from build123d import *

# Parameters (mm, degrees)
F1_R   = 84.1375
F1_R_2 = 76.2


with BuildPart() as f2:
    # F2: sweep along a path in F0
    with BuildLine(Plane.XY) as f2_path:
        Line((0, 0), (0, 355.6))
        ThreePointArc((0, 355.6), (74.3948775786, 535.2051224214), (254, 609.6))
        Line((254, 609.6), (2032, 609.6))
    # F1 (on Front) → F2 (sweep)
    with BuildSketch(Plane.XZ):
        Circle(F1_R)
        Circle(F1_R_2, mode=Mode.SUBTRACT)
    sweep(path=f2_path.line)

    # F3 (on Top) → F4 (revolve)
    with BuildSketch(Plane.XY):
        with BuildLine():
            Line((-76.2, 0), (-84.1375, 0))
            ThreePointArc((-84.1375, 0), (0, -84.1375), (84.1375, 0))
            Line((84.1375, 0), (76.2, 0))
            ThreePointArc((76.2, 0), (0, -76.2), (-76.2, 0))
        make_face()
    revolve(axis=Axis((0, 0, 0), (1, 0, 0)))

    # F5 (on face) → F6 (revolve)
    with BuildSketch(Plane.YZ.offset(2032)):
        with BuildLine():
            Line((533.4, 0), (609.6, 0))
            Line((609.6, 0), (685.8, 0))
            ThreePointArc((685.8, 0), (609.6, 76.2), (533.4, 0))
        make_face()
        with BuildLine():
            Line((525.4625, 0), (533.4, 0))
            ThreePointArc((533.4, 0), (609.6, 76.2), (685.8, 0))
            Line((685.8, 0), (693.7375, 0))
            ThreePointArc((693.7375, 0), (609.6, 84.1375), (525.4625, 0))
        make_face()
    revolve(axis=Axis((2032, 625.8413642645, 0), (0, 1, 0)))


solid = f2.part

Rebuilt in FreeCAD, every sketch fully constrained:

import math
import FreeCAD as App
import Part
import Sketcher
Q = App.Units.Quantity

doc = App.newDocument("Part")
body = doc.addObject("PartDesign::Body", "Body")

# Sketch on XZ plane
sketch1 = body.newObject("Sketcher::SketchObject", "Sketch")
sketch1.AttachmentSupport = (doc.getObject("XZ_Plane"), [""])
sketch1.MapMode = "FlatFace"
sketch1.addGeometry([
    Part.Circle(App.Vector(0, 0, 0), App.Vector(0, 0, 1), 84),
    Part.Circle(App.Vector(0, 0, 0), App.Vector(0, 0, 1), 76),
], False)
sketch1.addConstraint([
    Sketcher.Constraint("Coincident", 0, 3, -1, 1),
    Sketcher.Constraint("Coincident", 1, 3, -1, 1),
    Sketcher.Constraint("Diameter", 1, Q("6 in")),
    Sketcher.Constraint("Diameter", 0, Q("6.625 in")),
])

# Sketch on XY plane
sketch2 = body.newObject("Sketcher::SketchObject", "Sketch001")
sketch2.AttachmentSupport = (doc.getObject("XY_Plane"), [""])
sketch2.MapMode = "FlatFace"
sketch2.addGeometry([
    Part.LineSegment(App.Vector(0, 0, 0), App.Vector(0, 356, 0)),
    Part.ArcOfCircle(Part.Circle(App.Vector(254, 356, 0), App.Vector(0, 0, 1), 254), math.radians(90), math.radians(180)),
    Part.LineSegment(App.Vector(254, 610, 0), App.Vector(2032, 610, 0)),
], False)
sketch2.addConstraint([
    Sketcher.Constraint("Tangent", 0, 2, 1, 2),
    Sketcher.Constraint("Tangent", 1, 1, 2, 1),
    Sketcher.Constraint("Vertical", 0),
    Sketcher.Constraint("Horizontal", 2),
    Sketcher.Constraint("Coincident", 0, 1, -1, 1),
    Sketcher.Constraint("Radius", 1, Q("10 in")),
    Sketcher.Constraint("DistanceX", 2, 1, 2, 2, Q("70 in")),
    Sketcher.Constraint("DistanceY", 0, 1, 0, 2, Q("14 in")),
])
doc.recompute()

additivepipe = body.newObject("PartDesign::AdditivePipe", "AdditivePipe")
additivepipe.Profile = sketch1
additivepipe.Spine = (sketch2, ["Edge1", "Edge2", "Edge3"])

# Sketch on XY plane
sketch3 = body.newObject("Sketcher::SketchObject", "Sketch002")
sketch3.AttachmentSupport = (doc.getObject("XY_Plane"), [""])
sketch3.MapMode = "FlatFace"
sketch3.addGeometry([
    Part.LineSegment(App.Vector(-76, 0, 0), App.Vector(-84, 0, 0)),
    Part.ArcOfCircle(Part.Circle(App.Vector(0, 0, 0), App.Vector(0, 0, 1), 84), math.radians(180), math.radians(360)),
    Part.LineSegment(App.Vector(84, 0, 0), App.Vector(76, 0, 0)),
    Part.ArcOfCircle(Part.Circle(App.Vector(0, 0, 0), App.Vector(0, 0, 1), 76), math.radians(180), math.radians(360)),
], False)
sketch3.addConstraint([
    Sketcher.Constraint("Coincident", 0, 2, 1, 1),
    Sketcher.Constraint("Coincident", 1, 2, 2, 1),
    Sketcher.Constraint("Coincident", 2, 2, 3, 2),
    Sketcher.Constraint("Coincident", 3, 1, 0, 1),
    Sketcher.Constraint("Horizontal", 0),
    Sketcher.Constraint("Horizontal", 2),
    Sketcher.Constraint("Coincident", 1, 3, -1, 1),
    Sketcher.Constraint("Coincident", 3, 3, -1, 1),
    Sketcher.Constraint("PointOnObject", 0, 2, -1),
    Sketcher.Constraint("PointOnObject", 1, 2, -1),
    Sketcher.Constraint("Radius", 3, Q("3 in")),
    Sketcher.Constraint("Radius", 1, Q("3.3125 in")),
])
revolution = body.newObject("PartDesign::Revolution", "Revolution")
revolution.Profile = sketch3
revolution.ReferenceAxis = (sketch3, ["H_Axis"])
revolution.Angle = 360

# Sketch on YZ plane
sketch4 = body.newObject("Sketcher::SketchObject", "Sketch003")
sketch4.AttachmentSupport = (doc.getObject("YZ_Plane"), [""])
sketch4.MapMode = "FlatFace"
sketch4.AttachmentOffset = App.Placement(App.Vector(0, 0, 80 * 25.4), App.Rotation())
sketch4.addGeometry([
    Part.ArcOfCircle(Part.Circle(App.Vector(610, 0, 0), App.Vector(0, 0, 1), 84), math.radians(0), math.radians(180)),
    Part.LineSegment(App.Vector(525, 0, 0), App.Vector(694, 0, 0)),
], False)
sketch4.addConstraint([
    Sketcher.Constraint("Coincident", 0, 1, 1, 2),
    Sketcher.Constraint("Coincident", 1, 1, 0, 2),
    Sketcher.Constraint("Horizontal", 1),
    Sketcher.Constraint("PointOnObject", 0, 3, -1),
    Sketcher.Constraint("PointOnObject", 0, 1, -1),
    Sketcher.Constraint("DistanceX", -1, 1, 0, 3, Q("24 in")),
    Sketcher.Constraint("Radius", 0, Q("3.3125 in")),
])
revolution2 = body.newObject("PartDesign::Revolution", "Revolution001")
revolution2.Profile = sketch4
revolution2.ReferenceAxis = (sketch4, ["H_Axis"])
revolution2.Angle = 360

doc.recompute()
